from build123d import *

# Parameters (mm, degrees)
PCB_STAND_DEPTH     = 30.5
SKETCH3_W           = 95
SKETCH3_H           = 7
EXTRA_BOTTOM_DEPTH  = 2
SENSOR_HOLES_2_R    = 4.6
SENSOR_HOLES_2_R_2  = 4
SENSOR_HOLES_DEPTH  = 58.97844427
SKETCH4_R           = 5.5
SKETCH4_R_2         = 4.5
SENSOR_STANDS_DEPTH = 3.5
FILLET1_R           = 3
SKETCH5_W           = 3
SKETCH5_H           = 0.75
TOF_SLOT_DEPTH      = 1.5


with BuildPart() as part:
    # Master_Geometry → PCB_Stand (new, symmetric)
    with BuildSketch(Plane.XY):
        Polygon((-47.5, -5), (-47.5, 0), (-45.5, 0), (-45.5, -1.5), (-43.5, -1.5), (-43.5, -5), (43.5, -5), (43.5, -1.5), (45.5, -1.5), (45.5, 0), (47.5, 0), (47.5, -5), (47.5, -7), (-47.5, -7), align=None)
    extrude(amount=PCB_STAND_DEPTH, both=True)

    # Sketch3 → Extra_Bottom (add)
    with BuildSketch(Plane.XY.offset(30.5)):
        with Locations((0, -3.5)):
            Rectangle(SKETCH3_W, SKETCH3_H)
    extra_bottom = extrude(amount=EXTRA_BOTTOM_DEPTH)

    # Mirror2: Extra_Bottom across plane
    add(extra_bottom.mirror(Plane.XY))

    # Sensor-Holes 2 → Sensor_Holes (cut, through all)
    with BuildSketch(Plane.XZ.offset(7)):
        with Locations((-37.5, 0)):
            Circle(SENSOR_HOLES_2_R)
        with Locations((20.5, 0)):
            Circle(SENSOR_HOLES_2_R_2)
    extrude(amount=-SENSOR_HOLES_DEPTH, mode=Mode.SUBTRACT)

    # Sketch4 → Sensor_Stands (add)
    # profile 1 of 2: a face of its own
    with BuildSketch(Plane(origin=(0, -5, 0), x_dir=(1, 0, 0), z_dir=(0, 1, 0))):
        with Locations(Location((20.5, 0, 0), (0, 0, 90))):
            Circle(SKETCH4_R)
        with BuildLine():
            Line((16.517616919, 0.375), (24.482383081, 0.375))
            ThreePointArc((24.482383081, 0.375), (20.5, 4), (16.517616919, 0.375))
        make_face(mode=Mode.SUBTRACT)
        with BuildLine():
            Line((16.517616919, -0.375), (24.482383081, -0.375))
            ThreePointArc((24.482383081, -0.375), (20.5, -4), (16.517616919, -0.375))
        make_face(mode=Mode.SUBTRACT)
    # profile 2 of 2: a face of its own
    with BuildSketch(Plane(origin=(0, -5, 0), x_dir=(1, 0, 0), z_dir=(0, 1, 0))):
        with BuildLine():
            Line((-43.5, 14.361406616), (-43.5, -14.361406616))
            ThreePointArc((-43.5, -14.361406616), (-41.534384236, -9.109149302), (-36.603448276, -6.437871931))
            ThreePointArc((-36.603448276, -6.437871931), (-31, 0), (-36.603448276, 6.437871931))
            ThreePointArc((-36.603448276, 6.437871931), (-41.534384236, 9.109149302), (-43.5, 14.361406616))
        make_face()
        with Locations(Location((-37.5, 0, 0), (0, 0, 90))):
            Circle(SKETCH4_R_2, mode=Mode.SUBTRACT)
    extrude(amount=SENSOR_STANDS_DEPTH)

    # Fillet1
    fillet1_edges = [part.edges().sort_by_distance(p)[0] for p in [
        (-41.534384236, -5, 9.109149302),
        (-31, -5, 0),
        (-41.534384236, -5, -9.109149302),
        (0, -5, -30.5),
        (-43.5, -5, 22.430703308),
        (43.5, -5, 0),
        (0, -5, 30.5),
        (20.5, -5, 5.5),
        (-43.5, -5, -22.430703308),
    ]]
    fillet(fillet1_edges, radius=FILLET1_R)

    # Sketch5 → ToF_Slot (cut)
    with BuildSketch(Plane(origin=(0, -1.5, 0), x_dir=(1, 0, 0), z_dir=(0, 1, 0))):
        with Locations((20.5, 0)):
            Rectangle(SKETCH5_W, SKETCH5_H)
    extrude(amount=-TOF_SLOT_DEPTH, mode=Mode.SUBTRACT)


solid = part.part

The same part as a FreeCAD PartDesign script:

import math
import FreeCAD as App
import Part
import Sketcher
from FreeCAD import Vector
Q = App.Units.Quantity


def edges_at(feature, points):
    """Names of the edges that pass closest to the given points."""
    edges = feature.Shape.Edges
    near = lambda p: min(range(len(edges)), key=lambda i: edges[i].distToShape(Part.Vertex(*p))[0])
    return sorted({f"Edge{near(p) + 1}" for p in points})


def add_polygon(sketch, points):
    """Adds a closed chain of lines whose ends are joined by coincident constraints."""
    first, n = sketch.GeometryCount, len(points)
    for a, b in zip(points, points[1:] + points[:1]):
        sketch.addGeometry(Part.LineSegment(App.Vector(*a, 0), App.Vector(*b, 0)), False)
    for i in range(n):
        sketch.addConstraint(Sketcher.Constraint("Coincident", first + i, 2, first + (i + 1) % n, 1))

doc = App.newDocument("Part")
body = doc.addObject("PartDesign::Body", "Body")

sketch1 = body.newObject("Sketcher::SketchObject", "Sketch")
sketch1.AttachmentSupport = (doc.getObject("XY_Plane"), [""])
sketch1.MapMode = "FlatFace"
add_polygon(sketch1, [(-47.5, 0), (-47.5, -7), (47.5, -7), (47.5, 0), (45.5, 0), (45.5, -1.5), (43.5, -1.5), (43.5, -5), (-43.5, -5), (-43.5, -1.5), (-45.5, -1.5), (-45.5, 0)])
sketch1.addConstraint([
    Sketcher.Constraint("Vertical", 0),
    Sketcher.Constraint("Horizontal", 1),
    Sketcher.Constraint("Vertical", 2),
    Sketcher.Constraint("Horizontal", 3),
    Sketcher.Constraint("Vertical", 4),
    Sketcher.Constraint("Horizontal", 5),
    Sketcher.Constraint("Vertical", 6),
    Sketcher.Constraint("Horizontal", 7),
    Sketcher.Constraint("Vertical", 8),
    Sketcher.Constraint("Horizontal", 9),
    Sketcher.Constraint("Vertical", 10),
    Sketcher.Constraint("Horizontal", 11),
    Sketcher.Constraint("Symmetric", 3, 2, 10, 2, -1, 1),
    Sketcher.Constraint("Symmetric", 5, 2, 8, 2, -2),
    Sketcher.Constraint("Symmetric", 2, 2, 11, 2, -2),
    Sketcher.Constraint("Equal", 3, 5),
    Sketcher.Constraint("DistanceX", 1, 1, 1, 2, Q("95 mm")),
    Sketcher.Constraint("DistanceX", 3, 2, 3, 1, Q("2 mm")),
    Sketcher.Constraint("DistanceY", 0, 2, 0, 1, Q("7 mm")),
    Sketcher.Constraint("DistanceY", 4, 2, 4, 1, Q("1.5 mm")),
    Sketcher.Constraint("DistanceY", 6, 2, 6, 1, Q("3.5 mm")),
])
pad1 = body.newObject("PartDesign::Pad", "Pad")
pad1.Profile = sketch1
pad1.Length = 61
pad1.Midplane = True

sketch2 = body.newObject("Sketcher::SketchObject", "Sketch001")
sketch2.AttachmentSupport = (doc.getObject("XY_Plane"), [""])
sketch2.MapMode = "FlatFace"
sketch2.AttachmentOffset = App.Placement(Vector(0, 0, 30.5), App.Rotation())
add_polygon(sketch2, [(-48, 0), (-48, -7), (48, -7), (48, 0)])
sketch2.addConstraint([
    Sketcher.Constraint("Vertical", 0),
    Sketcher.Constraint("Horizontal", 1),
    Sketcher.Constraint("Vertical", 2),
    Sketcher.Constraint("Horizontal", 3),
    Sketcher.Constraint("Symmetric", 2, 2, 3, 2, -1, 1),
    Sketcher.Constraint("DistanceX", 1, 1, 1, 2, Q("95 mm")),
    Sketcher.Constraint("DistanceY", 0, 2, 0, 1, Q("7 mm")),
])
pad2 = body.newObject("PartDesign::Pad", "Pad001")
pad2.Profile = sketch2
pad2.Length = 2
doc.recompute()

mirrored = body.newObject("PartDesign::Mirrored", "Mirrored")
mirrored.Originals = [pad2]
mirrored.MirrorPlane = (doc.getObject("XY_Plane"), [""])
body.Tip = mirrored

sketch3 = body.newObject("Sketcher::SketchObject", "Sketch002")
sketch3.AttachmentSupport = (doc.getObject("XZ_Plane"), [""])
sketch3.MapMode = "FlatFace"
sketch3.AttachmentOffset = App.Placement(Vector(0, 0, 7), App.Rotation())
sketch3.addGeometry([
    Part.Circle(Vector(-37.5, 0, 0), Vector(0, 0, 1), 4.6),
    Part.Circle(Vector(20.5, 0, 0), Vector(0, 0, 1), 4),
], False)
sketch3.addConstraint([
    Sketcher.Constraint("PointOnObject", 0, 3, -1),
    Sketcher.Constraint("PointOnObject", 1, 3, -1),
    Sketcher.Constraint("Diameter", 1, Q("8 mm")),
    Sketcher.Constraint("Diameter", 0, Q("9.2 mm")),
    Sketcher.Constraint("DistanceX", 0, 3, 1, 3, Q("58 mm")),
    Sketcher.Constraint("DistanceX", 0, 3, -1, 1, Q("37.5 mm")),
])
pocket1 = body.newObject("PartDesign::Pocket", "Pocket")
pocket1.Profile = sketch3
pocket1.Type = "ThroughAll"

sketch4 = body.newObject("Sketcher::SketchObject", "Sketch003")
sketch4.AttachmentSupport = (doc.getObject("XZ_Plane"), [""])
sketch4.MapMode = "FlatFace"
sketch4.AttachmentOffset = App.Placement(Vector(0, 0, 5), App.Rotation())
sketch4.addGeometry([
    Part.Circle(Vector(20.5, 0, 0), Vector(0, 0, 1), 5.5),
    Part.ArcOfCircle(Part.Circle(Vector(20.5, 0, 0), Vector(0, 0, 1), 4), math.radians(5), math.radians(175)),
    Part.LineSegment(Vector(16.5, 0.4, 0), Vector(24.5, 0.4, 0)),
    Part.LineSegment(Vector(24.5, -0.4, 0), Vector(16.5, -0.4, 0)),
    Part.ArcOfCircle(Part.Circle(Vector(20.5, 0, 0), Vector(0, 0, 1), 4), math.radians(-175), math.radians(-5)),
    Part.LineSegment(Vector(-43.5, -14.4, 0), Vector(-43.5, 14.4, 0)),
    Part.ArcOfCircle(Part.Circle(Vector(-35.5, 14.4, 0), Vector(0, 0, 1), 8), math.radians(180), math.radians(262)),
    Part.ArcOfCircle(Part.Circle(Vector(-37.5, 0, 0), Vector(0, 0, 1), 6.5), math.radians(-82), math.radians(82)),
    Part.ArcOfCircle(Part.Circle(Vector(-35.5, -14.4, 0), Vector(0, 0, 1), 8), math.radians(98), math.radians(180)),
    Part.Circle(Vector(-37.5, 0, 0), Vector(0, 0, 1), 4.5),
], False)
sketch4.addConstraint([
    Sketcher.Constraint("Coincident", 1, 1, 2, 2),
    Sketcher.Constraint("Coincident", 2, 1, 1, 2),
    Sketcher.Constraint("Coincident", 3, 1, 4, 2),
    Sketcher.Constraint("Coincident", 4, 1, 3, 2),
    Sketcher.Constraint("Tangent", 5, 2, 6, 1),
    Sketcher.Constraint("Tangent", 6, 2, 7, 2),
    Sketcher.Constraint("Tangent", 7, 1, 8, 1),
    Sketcher.Constraint("Tangent", 8, 2, 5, 1),
    Sketcher.Constraint("Horizontal", 2),
    Sketcher.Constraint("Horizontal", 3),
    Sketcher.Constraint("Vertical", 5),
    Sketcher.Constraint("Coincident", 1, 3, 0, 3),
    Sketcher.Constraint("Coincident", 4, 3, 0, 3),
    Sketcher.Constraint("Coincident", 9, 3, 7, 3),
    Sketcher.Constraint("Equal", 1, 4),
    Sketcher.Constraint("Equal", 6, 8),
    Sketcher.Constraint("Symmetric", 1, 1, 3, 1, -1),
    Sketcher.Constraint("PointOnObject", 7, 3, -1),
    Sketcher.Constraint("Diameter", 0, Q("11 mm")),
    Sketcher.Constraint("Diameter", 9, Q("9 mm")),
    Sketcher.Constraint("Radius", 1, Q("4 mm")),
    Sketcher.Constraint("Radius", 6, Q("8 mm")),
    Sketcher.Constraint("Radius", 7, Q("6.5 mm")),
    Sketcher.Constraint("DistanceX", 6, 3, 4, 3, Q("56 mm")),
    Sketcher.Constraint("DistanceX", 7, 3, 6, 3, Q("2 mm")),
    Sketcher.Constraint("DistanceX", -1, 1, 0, 3, Q("20.5 mm")),
    Sketcher.Constraint("DistanceY", 3, 1, 1, 1, Q("0.75 mm")),
])
pad3 = body.newObject("PartDesign::Pad", "Pad002")
pad3.Profile = sketch4
pad3.Length = 3.5
pad3.Reversed = True
doc.recompute()

fillet = body.newObject("PartDesign::Fillet", "Fillet")
fillet.Base = (pad3, edges_at(pad3, [
    (-41.534, -5, 9.109),
    (-31, -5, 0),
    (-41.534, -5, -9.109),
    (0, -5, -30.5),
    (-43.5, -5, 22.431),
    (43.5, -5, 0),
    (0, -5, 30.5),
    (20.5, -5, 5.5),
    (-43.5, -5, -22.431),
]))
fillet.Radius = 3

sketch5 = body.newObject("Sketcher::SketchObject", "Sketch004")
sketch5.AttachmentSupport = (doc.getObject("XZ_Plane"), [""])
sketch5.MapMode = "FlatFace"
sketch5.AttachmentOffset = App.Placement(Vector(0, 0, 1.5), App.Rotation())
add_polygon(sketch5, [(19, -0.4), (19, 0.4), (22, 0.4), (22, -0.4)])
sketch5.addConstraint([
    Sketcher.Constraint("Vertical", 0),
    Sketcher.Constraint("Horizontal", 1),
    Sketcher.Constraint("Vertical", 2),
    Sketcher.Constraint("Horizontal", 3),
    Sketcher.Constraint("DistanceX", 1, 1, 1, 2, Q("3 mm")),
    Sketcher.Constraint("DistanceX", -1, 1, 0, 2, Q("19 mm")),
    Sketcher.Constraint("DistanceY", 0, 1, 0, 2, Q("0.75 mm")),
    Sketcher.Constraint("DistanceY", -1, 1, 0, 2, Q("0.375 mm")),
])
pocket2 = body.newObject("PartDesign::Pocket", "Pocket001")
pocket2.Profile = sketch5
pocket2.Length = 1.5
pocket2.Reversed = True

doc.recompute()
